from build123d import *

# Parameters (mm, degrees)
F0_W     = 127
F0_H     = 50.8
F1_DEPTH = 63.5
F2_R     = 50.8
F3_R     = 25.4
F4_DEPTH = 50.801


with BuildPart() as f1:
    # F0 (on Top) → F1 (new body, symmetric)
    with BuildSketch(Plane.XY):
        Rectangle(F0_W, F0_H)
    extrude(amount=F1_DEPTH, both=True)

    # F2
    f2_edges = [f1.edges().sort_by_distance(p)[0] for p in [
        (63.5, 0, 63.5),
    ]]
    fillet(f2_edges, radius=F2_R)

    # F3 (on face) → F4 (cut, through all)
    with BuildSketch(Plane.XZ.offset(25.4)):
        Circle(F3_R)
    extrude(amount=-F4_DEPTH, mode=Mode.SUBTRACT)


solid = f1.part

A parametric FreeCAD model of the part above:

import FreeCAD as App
import Part
import Sketcher
from FreeCAD import Vector
Q = App.Units.Quantity


def edges_at(feature, points):
    """Names of the edges that pass closest to the given points."""
    edges = feature.Shape.Edges
    near = lambda p: min(range(len(edges)), key=lambda i: edges[i].distToShape(Part.Vertex(*p))[0])
    return sorted({f"Edge{near(p) + 1}" for p in points})

doc = App.newDocument("Part")
body = doc.addObject("PartDesign::Body", "Body")

sketch1 = doc.addObject("Sketcher::SketchObject", "Sketch")
body.addObject(sketch1)
sketch1.AttachmentSupport = (doc.XY_Plane, [""])
sketch1.MapMode = "FlatFace"
sketch1.addGeometry([
    Part.LineSegment(Vector(-64, 25, 0), Vector(-64, -25, 0)),
    Part.LineSegment(Vector(-64, -25, 0), Vector(64, -25, 0)),
    Part.LineSegment(Vector(64, -25, 0), Vector(64, 25, 0)),
    Part.LineSegment(Vector(64, 25, 0), Vector(-64, 25, 0)),
], False)
sketch1.addConstraint([
    Sketcher.Constraint("Coincident", 0, 2, 1, 1),
    Sketcher.Constraint("Coincident", 1, 2, 2, 1),
    Sketcher.Constraint("Coincident", 2, 2, 3, 1),
    Sketcher.Constraint("Coincident", 3, 2, 0, 1),
    Sketcher.Constraint("Vertical", 0),
    Sketcher.Constraint("Horizontal", 1),
    Sketcher.Constraint("Vertical", 2),
    Sketcher.Constraint("Horizontal", 3),
    Sketcher.Constraint("Symmetric", 0, 2, 2, 2, -1, 1),
    Sketcher.Constraint("DistanceX", 1, 1, 1, 2, Q("5 in")),
    Sketcher.Constraint("DistanceY", 0, 2, 0, 1, Q("2 in")),
])
pad1 = doc.addObject("PartDesign::Pad", "Pad")
body.addObject(pad1)
pad1.Profile = sketch1
pad1.Length = Q("5 in")
pad1.Midplane = True
doc.recompute()

fillet = doc.addObject("PartDesign::Fillet", "Fillet")
body.addObject(fillet)
fillet.Base = (pad1, edges_at(pad1, [(63.5, 0, 63.5)]))
fillet.Radius = Q("2 in")

sketch2 = doc.addObject("Sketcher::SketchObject", "Sketch001")
body.addObject(sketch2)
sketch2.AttachmentSupport = (doc.XZ_Plane, [""])
sketch2.MapMode = "FlatFace"
sketch2.AttachmentOffset = App.Placement(Vector(0, 0, 1 * 25.4), App.Rotation())
sketch2.addGeometry(Part.Circle(Vector(0, 0, 0), Vector(0, 0, 1), 25), False)
sketch2.addConstraint([
    Sketcher.Constraint("Coincident", 0, 3, -1, 1),
    Sketcher.Constraint("Diameter", 0, Q("2 in")),
])
pocket1 = doc.addObject("PartDesign::Pocket", "Pocket")
body.addObject(pocket1)
pocket1.Profile = sketch2
pocket1.Type = "ThroughAll"

doc.recompute()
